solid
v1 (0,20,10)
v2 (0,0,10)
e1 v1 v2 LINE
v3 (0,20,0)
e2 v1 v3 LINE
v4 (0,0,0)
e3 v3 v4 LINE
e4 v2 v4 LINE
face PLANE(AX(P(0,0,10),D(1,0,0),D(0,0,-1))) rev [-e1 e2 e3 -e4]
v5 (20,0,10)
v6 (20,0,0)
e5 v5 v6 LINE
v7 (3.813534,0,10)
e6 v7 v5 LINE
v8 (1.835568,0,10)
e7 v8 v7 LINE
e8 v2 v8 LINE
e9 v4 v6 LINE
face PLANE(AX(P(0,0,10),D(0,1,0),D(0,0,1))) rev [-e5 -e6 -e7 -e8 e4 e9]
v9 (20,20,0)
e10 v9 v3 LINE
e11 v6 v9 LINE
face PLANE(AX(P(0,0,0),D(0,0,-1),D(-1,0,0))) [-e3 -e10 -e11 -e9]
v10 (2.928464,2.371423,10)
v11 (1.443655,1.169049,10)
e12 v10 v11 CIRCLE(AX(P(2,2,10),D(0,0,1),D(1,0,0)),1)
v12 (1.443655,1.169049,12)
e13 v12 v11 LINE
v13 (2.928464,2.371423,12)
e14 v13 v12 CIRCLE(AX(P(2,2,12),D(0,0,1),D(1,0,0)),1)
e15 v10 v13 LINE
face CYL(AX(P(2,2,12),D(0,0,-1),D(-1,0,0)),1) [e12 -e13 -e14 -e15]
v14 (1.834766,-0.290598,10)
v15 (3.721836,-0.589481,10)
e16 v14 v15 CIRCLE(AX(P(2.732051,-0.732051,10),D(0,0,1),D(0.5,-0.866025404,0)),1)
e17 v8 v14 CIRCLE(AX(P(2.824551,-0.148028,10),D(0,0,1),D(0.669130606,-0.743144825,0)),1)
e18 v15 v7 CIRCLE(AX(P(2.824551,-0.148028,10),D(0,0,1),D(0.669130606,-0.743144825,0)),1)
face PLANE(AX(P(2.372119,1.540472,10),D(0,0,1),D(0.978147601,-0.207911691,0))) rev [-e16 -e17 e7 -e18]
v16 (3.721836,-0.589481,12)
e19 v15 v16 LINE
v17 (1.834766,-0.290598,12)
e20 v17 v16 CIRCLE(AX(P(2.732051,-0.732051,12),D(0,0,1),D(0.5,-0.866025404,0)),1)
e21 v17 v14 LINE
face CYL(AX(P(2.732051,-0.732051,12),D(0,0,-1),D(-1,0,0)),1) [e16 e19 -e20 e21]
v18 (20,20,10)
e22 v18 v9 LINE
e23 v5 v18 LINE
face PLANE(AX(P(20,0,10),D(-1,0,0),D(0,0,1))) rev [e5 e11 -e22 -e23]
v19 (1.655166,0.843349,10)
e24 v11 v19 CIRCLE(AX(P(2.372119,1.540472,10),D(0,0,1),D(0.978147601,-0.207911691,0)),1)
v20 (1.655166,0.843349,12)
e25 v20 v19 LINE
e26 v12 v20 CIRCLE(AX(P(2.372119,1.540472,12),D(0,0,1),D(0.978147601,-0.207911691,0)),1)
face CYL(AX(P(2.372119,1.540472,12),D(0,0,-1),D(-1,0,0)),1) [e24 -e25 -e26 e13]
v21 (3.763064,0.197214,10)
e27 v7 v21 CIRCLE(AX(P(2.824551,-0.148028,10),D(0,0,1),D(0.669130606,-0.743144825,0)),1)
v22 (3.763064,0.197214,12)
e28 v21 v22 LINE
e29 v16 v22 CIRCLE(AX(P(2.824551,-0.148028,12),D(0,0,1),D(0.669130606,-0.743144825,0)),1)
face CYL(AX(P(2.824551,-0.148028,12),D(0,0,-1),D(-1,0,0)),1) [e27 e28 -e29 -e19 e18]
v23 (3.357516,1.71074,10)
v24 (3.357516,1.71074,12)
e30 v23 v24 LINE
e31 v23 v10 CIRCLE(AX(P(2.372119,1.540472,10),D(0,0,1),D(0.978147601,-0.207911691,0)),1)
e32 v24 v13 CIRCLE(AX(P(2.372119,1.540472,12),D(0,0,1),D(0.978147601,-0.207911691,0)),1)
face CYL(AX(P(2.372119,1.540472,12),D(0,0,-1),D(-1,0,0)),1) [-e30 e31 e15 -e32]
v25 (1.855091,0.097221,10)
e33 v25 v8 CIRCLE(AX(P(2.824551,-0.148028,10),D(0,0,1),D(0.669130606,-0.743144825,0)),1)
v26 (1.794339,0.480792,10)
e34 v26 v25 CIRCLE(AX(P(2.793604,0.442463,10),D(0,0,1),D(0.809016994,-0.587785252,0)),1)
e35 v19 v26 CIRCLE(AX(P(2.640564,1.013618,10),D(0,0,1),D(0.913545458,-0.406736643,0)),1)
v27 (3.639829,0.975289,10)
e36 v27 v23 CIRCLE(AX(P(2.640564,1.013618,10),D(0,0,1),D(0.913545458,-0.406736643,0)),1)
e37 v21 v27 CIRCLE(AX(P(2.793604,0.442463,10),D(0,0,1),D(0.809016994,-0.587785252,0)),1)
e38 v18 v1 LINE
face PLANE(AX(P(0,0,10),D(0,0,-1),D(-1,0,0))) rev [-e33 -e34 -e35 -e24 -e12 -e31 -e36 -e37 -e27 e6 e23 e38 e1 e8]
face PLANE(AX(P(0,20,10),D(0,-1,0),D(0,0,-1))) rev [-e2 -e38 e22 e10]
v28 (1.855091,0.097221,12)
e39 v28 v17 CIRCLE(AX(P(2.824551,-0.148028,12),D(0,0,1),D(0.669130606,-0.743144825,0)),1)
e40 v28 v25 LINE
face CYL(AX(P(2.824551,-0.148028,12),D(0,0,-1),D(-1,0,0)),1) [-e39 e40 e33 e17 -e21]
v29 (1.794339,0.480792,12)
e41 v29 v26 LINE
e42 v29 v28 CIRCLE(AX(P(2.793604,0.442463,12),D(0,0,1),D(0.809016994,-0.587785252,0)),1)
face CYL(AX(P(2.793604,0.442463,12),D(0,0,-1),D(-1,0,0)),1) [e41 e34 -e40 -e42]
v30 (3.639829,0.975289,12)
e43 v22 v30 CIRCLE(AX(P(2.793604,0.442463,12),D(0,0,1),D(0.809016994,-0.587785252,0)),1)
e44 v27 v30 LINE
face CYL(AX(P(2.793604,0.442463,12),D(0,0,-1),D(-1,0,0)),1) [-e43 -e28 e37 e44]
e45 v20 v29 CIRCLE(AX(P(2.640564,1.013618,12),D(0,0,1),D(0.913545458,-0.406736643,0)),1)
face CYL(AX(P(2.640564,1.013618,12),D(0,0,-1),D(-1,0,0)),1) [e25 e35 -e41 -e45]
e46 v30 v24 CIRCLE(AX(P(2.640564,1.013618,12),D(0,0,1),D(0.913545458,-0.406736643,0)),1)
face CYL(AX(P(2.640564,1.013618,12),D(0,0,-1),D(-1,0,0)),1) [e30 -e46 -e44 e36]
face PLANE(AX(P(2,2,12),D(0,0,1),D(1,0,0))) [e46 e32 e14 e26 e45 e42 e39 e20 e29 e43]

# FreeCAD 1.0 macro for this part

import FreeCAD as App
import Part
import Sketcher

V = App.Vector


def add_polygon(sketch, points):
    """Adds a closed chain of lines whose ends are joined by coincident constraints."""
    first, n = sketch.GeometryCount, len(points)
    for a, b in zip(points, points[1:] + points[:1]):
        sketch.addGeometry(Part.LineSegment(App.Vector(*a, 0), App.Vector(*b, 0)), False)
    for i in range(n):
        sketch.addConstraint(Sketcher.Constraint("Coincident", first + i, 2, first + (i + 1) % n, 1))

doc = App.newDocument("Part")
body = doc.addObject("PartDesign::Body", "Body")

sketch1 = body.newObject("Sketcher::SketchObject", "Sketch")
sketch1.AttachmentSupport = (doc.getObject("XY_Plane"), [""])
sketch1.MapMode = "FlatFace"
add_polygon(sketch1, [(0, 20), (0, 0), (20, 0), (20, 20)])
sketch1.addConstraint(Sketcher.Constraint("Vertical", 0))
sketch1.addConstraint(Sketcher.Constraint("Horizontal", 1))
sketch1.addConstraint(Sketcher.Constraint("Vertical", 2))
sketch1.addConstraint(Sketcher.Constraint("Horizontal", 3))
sketch1.addConstraint(Sketcher.Constraint("Coincident", 0, 2, -1, 1))
sketch1.addConstraint(Sketcher.Constraint("Equal", 3, 0))
sketch1.addConstraint(Sketcher.Constraint("DistanceX", 1, 1, 1, 2, 20.0))
pad1 = body.newObject("PartDesign::Pad", "Pad")
pad1.Profile = sketch1
pad1.Length = 10

sketch2 = body.newObject("Sketcher::SketchObject", "Sketch001")
sketch2.AttachmentSupport = (doc.getObject("XY_Plane"), [""])
sketch2.MapMode = "FlatFace"
sketch2.AttachmentOffset = App.Placement(V(0, 0, 10), App.Rotation())
sketch2.addGeometry(Part.Circle(V(2, 2, 0), V(0, 0, 1), 1), False)
sketch2.addConstraint(Sketcher.Constraint("Diameter", 0, 2.0))
sketch2.addConstraint(Sketcher.Constraint("DistanceX", -1, 1, 0, 3, 2.0))
sketch2.addConstraint(Sketcher.Constraint("DistanceY", -1, 1, 0, 3, 2.0))
pad2 = body.newObject("PartDesign::Pad", "Pad001")
pad2.Profile = sketch2
pad2.Length = 2
doc.recompute()

polarpattern = body.newObject("PartDesign::PolarPattern", "PolarPattern")
polarpattern.Originals = [pad2]
polarpattern.Axis = (doc.getObject("Z_Axis"), [""])
polarpattern.Angle = 60
polarpattern.Occurrences = 6
polarpattern.Reversed = True
body.Tip = polarpattern

doc.recompute()
